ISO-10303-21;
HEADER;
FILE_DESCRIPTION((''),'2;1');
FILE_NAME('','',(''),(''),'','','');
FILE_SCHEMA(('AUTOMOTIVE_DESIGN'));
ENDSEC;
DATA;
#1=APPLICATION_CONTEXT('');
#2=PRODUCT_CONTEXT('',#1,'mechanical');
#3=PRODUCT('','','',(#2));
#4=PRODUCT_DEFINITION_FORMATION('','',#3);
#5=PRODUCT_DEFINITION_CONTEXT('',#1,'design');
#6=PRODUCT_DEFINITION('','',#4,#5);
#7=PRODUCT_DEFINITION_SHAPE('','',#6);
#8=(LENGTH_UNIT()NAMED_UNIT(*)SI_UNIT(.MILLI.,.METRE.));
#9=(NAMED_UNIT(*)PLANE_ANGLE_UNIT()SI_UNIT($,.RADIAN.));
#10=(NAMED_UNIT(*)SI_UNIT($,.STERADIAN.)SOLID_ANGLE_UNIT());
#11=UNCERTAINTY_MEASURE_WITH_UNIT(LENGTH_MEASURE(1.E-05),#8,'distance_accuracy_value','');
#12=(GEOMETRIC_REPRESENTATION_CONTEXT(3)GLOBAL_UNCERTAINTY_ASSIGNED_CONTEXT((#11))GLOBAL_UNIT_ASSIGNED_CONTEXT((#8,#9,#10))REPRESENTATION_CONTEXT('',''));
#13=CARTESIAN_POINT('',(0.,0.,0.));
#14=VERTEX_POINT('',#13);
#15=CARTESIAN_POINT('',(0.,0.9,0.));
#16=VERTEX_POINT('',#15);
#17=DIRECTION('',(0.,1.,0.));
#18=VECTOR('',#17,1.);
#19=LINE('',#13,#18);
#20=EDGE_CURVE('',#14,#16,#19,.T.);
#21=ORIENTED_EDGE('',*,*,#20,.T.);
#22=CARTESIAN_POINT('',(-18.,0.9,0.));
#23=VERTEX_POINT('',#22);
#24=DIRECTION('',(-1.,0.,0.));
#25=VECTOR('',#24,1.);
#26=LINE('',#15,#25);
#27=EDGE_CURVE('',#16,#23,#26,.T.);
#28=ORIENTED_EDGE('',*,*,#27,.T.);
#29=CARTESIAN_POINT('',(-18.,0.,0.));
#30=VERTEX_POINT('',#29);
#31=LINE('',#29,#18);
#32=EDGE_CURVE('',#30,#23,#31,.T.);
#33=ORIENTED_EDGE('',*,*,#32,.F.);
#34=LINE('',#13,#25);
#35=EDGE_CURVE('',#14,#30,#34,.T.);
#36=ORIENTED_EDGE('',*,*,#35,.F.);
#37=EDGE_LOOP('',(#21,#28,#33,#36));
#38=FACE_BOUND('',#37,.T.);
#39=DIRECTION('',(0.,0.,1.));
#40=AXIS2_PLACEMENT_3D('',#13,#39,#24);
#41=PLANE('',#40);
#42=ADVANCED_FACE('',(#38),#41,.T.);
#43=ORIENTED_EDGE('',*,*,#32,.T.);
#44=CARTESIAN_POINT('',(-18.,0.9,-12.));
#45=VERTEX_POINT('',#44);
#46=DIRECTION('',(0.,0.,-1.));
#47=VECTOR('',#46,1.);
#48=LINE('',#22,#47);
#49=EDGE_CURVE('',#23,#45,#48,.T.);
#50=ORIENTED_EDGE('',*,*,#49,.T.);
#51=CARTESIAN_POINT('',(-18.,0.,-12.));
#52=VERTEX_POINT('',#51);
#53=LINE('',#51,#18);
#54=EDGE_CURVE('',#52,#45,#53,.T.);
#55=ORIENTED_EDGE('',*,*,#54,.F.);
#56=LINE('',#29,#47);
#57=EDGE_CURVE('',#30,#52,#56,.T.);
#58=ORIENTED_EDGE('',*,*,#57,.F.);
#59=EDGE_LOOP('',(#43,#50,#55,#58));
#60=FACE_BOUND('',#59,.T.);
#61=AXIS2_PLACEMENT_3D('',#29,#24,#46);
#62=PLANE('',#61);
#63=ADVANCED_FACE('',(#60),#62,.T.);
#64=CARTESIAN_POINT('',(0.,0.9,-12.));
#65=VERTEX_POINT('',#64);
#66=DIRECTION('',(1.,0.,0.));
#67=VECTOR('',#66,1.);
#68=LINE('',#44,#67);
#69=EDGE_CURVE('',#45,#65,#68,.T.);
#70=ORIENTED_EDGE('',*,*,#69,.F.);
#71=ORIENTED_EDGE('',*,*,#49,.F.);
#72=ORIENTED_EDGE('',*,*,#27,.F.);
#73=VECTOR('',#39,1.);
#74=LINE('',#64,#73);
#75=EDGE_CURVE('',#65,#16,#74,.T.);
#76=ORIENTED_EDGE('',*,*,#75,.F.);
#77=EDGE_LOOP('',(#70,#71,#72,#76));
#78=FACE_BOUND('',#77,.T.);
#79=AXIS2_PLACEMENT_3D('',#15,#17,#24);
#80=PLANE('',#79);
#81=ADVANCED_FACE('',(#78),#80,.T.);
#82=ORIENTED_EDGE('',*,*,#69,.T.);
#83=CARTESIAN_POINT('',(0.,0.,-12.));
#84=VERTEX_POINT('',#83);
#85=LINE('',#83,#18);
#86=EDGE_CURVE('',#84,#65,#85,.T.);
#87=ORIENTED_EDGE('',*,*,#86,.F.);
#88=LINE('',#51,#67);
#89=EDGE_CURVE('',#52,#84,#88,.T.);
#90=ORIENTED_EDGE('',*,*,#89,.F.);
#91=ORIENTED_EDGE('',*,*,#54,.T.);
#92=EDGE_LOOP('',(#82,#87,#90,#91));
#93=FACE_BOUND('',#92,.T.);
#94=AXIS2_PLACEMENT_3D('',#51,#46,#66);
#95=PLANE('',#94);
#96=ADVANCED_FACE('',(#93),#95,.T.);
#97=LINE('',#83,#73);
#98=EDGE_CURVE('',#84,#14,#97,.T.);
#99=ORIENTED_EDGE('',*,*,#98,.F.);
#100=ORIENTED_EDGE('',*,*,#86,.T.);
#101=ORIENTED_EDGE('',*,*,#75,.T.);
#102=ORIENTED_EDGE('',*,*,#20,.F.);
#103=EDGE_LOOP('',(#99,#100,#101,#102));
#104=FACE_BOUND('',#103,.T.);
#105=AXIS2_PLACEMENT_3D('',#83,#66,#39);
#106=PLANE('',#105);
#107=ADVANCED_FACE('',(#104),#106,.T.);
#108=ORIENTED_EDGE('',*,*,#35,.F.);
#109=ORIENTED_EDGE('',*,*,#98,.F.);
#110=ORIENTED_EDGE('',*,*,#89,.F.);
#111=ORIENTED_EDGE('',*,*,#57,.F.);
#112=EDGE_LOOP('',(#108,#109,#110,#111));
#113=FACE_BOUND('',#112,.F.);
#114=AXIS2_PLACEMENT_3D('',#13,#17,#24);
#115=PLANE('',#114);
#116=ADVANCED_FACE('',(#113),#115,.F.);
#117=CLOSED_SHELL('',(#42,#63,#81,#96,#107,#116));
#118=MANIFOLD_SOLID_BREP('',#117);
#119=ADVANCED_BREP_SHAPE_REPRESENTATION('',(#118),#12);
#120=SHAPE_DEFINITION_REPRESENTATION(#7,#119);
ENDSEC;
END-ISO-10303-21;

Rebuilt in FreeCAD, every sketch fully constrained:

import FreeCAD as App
import Part
import Sketcher
Q = App.Units.Quantity

doc = App.newDocument("Part")
params = doc.addObject("Spreadsheet::Sheet", "Params")
for row, (alias, value) in enumerate([
    ("sketch1_width", "18 mm"),
    ("sketch1_height", "12 mm"),
    ("pad1_length", "0.9 mm"),
], start=1):
    params.set(f"A{row}", alias)
    params.set(f"B{row}", "=" + value)
    params.setAlias(f"B{row}", alias)

body = doc.addObject("PartDesign::Body", "Body")

# Sketch on XZ plane
sketch1 = doc.addObject("Sketcher::SketchObject", "Sketch")
body.addObject(sketch1)
sketch1.AttachmentSupport = (doc.XZ_Plane, [""])
sketch1.MapMode = "FlatFace"
sketch1.addGeometry(Part.LineSegment(App.Vector(-18, 0, 0), App.Vector(0, 0, 0)), False)
sketch1.addGeometry(Part.LineSegment(App.Vector(0, 0, 0), App.Vector(0, -12, 0)), False)
sketch1.addGeometry(Part.LineSegment(App.Vector(0, -12, 0), App.Vector(-18, -12, 0)), False)
sketch1.addGeometry(Part.LineSegment(App.Vector(-18, -12, 0), App.Vector(-18, 0, 0)), False)
sketch1.addConstraint(Sketcher.Constraint("Coincident", 0, 2, 1, 1))
sketch1.addConstraint(Sketcher.Constraint("Coincident", 1, 2, 2, 1))
sketch1.addConstraint(Sketcher.Constraint("Coincident", 2, 2, 3, 1))
sketch1.addConstraint(Sketcher.Constraint("Coincident", 3, 2, 0, 1))
sketch1.addConstraint(Sketcher.Constraint("Horizontal", 0))
sketch1.addConstraint(Sketcher.Constraint("Vertical", 1))
sketch1.addConstraint(Sketcher.Constraint("Horizontal", 2))
sketch1.addConstraint(Sketcher.Constraint("Vertical", 3))
sketch1.addConstraint(Sketcher.Constraint("Coincident", 0, 2, -1, 1))
sketch1.addConstraint(Sketcher.Constraint("DistanceX", 0, 1, 0, 2, Q("18 mm")))
sketch1.addConstraint(Sketcher.Constraint("DistanceY", 1, 2, 1, 1, Q("12 mm")))
sketch1.setExpression("Constraints[9]", "Params.sketch1_width")
sketch1.setExpression("Constraints[10]", "Params.sketch1_height")
pad1 = doc.addObject("PartDesign::Pad", "Pad")
body.addObject(pad1)
pad1.Profile = sketch1
pad1.setExpression("Length", "Params.pad1_length")
pad1.Reversed = True

doc.recompute()
